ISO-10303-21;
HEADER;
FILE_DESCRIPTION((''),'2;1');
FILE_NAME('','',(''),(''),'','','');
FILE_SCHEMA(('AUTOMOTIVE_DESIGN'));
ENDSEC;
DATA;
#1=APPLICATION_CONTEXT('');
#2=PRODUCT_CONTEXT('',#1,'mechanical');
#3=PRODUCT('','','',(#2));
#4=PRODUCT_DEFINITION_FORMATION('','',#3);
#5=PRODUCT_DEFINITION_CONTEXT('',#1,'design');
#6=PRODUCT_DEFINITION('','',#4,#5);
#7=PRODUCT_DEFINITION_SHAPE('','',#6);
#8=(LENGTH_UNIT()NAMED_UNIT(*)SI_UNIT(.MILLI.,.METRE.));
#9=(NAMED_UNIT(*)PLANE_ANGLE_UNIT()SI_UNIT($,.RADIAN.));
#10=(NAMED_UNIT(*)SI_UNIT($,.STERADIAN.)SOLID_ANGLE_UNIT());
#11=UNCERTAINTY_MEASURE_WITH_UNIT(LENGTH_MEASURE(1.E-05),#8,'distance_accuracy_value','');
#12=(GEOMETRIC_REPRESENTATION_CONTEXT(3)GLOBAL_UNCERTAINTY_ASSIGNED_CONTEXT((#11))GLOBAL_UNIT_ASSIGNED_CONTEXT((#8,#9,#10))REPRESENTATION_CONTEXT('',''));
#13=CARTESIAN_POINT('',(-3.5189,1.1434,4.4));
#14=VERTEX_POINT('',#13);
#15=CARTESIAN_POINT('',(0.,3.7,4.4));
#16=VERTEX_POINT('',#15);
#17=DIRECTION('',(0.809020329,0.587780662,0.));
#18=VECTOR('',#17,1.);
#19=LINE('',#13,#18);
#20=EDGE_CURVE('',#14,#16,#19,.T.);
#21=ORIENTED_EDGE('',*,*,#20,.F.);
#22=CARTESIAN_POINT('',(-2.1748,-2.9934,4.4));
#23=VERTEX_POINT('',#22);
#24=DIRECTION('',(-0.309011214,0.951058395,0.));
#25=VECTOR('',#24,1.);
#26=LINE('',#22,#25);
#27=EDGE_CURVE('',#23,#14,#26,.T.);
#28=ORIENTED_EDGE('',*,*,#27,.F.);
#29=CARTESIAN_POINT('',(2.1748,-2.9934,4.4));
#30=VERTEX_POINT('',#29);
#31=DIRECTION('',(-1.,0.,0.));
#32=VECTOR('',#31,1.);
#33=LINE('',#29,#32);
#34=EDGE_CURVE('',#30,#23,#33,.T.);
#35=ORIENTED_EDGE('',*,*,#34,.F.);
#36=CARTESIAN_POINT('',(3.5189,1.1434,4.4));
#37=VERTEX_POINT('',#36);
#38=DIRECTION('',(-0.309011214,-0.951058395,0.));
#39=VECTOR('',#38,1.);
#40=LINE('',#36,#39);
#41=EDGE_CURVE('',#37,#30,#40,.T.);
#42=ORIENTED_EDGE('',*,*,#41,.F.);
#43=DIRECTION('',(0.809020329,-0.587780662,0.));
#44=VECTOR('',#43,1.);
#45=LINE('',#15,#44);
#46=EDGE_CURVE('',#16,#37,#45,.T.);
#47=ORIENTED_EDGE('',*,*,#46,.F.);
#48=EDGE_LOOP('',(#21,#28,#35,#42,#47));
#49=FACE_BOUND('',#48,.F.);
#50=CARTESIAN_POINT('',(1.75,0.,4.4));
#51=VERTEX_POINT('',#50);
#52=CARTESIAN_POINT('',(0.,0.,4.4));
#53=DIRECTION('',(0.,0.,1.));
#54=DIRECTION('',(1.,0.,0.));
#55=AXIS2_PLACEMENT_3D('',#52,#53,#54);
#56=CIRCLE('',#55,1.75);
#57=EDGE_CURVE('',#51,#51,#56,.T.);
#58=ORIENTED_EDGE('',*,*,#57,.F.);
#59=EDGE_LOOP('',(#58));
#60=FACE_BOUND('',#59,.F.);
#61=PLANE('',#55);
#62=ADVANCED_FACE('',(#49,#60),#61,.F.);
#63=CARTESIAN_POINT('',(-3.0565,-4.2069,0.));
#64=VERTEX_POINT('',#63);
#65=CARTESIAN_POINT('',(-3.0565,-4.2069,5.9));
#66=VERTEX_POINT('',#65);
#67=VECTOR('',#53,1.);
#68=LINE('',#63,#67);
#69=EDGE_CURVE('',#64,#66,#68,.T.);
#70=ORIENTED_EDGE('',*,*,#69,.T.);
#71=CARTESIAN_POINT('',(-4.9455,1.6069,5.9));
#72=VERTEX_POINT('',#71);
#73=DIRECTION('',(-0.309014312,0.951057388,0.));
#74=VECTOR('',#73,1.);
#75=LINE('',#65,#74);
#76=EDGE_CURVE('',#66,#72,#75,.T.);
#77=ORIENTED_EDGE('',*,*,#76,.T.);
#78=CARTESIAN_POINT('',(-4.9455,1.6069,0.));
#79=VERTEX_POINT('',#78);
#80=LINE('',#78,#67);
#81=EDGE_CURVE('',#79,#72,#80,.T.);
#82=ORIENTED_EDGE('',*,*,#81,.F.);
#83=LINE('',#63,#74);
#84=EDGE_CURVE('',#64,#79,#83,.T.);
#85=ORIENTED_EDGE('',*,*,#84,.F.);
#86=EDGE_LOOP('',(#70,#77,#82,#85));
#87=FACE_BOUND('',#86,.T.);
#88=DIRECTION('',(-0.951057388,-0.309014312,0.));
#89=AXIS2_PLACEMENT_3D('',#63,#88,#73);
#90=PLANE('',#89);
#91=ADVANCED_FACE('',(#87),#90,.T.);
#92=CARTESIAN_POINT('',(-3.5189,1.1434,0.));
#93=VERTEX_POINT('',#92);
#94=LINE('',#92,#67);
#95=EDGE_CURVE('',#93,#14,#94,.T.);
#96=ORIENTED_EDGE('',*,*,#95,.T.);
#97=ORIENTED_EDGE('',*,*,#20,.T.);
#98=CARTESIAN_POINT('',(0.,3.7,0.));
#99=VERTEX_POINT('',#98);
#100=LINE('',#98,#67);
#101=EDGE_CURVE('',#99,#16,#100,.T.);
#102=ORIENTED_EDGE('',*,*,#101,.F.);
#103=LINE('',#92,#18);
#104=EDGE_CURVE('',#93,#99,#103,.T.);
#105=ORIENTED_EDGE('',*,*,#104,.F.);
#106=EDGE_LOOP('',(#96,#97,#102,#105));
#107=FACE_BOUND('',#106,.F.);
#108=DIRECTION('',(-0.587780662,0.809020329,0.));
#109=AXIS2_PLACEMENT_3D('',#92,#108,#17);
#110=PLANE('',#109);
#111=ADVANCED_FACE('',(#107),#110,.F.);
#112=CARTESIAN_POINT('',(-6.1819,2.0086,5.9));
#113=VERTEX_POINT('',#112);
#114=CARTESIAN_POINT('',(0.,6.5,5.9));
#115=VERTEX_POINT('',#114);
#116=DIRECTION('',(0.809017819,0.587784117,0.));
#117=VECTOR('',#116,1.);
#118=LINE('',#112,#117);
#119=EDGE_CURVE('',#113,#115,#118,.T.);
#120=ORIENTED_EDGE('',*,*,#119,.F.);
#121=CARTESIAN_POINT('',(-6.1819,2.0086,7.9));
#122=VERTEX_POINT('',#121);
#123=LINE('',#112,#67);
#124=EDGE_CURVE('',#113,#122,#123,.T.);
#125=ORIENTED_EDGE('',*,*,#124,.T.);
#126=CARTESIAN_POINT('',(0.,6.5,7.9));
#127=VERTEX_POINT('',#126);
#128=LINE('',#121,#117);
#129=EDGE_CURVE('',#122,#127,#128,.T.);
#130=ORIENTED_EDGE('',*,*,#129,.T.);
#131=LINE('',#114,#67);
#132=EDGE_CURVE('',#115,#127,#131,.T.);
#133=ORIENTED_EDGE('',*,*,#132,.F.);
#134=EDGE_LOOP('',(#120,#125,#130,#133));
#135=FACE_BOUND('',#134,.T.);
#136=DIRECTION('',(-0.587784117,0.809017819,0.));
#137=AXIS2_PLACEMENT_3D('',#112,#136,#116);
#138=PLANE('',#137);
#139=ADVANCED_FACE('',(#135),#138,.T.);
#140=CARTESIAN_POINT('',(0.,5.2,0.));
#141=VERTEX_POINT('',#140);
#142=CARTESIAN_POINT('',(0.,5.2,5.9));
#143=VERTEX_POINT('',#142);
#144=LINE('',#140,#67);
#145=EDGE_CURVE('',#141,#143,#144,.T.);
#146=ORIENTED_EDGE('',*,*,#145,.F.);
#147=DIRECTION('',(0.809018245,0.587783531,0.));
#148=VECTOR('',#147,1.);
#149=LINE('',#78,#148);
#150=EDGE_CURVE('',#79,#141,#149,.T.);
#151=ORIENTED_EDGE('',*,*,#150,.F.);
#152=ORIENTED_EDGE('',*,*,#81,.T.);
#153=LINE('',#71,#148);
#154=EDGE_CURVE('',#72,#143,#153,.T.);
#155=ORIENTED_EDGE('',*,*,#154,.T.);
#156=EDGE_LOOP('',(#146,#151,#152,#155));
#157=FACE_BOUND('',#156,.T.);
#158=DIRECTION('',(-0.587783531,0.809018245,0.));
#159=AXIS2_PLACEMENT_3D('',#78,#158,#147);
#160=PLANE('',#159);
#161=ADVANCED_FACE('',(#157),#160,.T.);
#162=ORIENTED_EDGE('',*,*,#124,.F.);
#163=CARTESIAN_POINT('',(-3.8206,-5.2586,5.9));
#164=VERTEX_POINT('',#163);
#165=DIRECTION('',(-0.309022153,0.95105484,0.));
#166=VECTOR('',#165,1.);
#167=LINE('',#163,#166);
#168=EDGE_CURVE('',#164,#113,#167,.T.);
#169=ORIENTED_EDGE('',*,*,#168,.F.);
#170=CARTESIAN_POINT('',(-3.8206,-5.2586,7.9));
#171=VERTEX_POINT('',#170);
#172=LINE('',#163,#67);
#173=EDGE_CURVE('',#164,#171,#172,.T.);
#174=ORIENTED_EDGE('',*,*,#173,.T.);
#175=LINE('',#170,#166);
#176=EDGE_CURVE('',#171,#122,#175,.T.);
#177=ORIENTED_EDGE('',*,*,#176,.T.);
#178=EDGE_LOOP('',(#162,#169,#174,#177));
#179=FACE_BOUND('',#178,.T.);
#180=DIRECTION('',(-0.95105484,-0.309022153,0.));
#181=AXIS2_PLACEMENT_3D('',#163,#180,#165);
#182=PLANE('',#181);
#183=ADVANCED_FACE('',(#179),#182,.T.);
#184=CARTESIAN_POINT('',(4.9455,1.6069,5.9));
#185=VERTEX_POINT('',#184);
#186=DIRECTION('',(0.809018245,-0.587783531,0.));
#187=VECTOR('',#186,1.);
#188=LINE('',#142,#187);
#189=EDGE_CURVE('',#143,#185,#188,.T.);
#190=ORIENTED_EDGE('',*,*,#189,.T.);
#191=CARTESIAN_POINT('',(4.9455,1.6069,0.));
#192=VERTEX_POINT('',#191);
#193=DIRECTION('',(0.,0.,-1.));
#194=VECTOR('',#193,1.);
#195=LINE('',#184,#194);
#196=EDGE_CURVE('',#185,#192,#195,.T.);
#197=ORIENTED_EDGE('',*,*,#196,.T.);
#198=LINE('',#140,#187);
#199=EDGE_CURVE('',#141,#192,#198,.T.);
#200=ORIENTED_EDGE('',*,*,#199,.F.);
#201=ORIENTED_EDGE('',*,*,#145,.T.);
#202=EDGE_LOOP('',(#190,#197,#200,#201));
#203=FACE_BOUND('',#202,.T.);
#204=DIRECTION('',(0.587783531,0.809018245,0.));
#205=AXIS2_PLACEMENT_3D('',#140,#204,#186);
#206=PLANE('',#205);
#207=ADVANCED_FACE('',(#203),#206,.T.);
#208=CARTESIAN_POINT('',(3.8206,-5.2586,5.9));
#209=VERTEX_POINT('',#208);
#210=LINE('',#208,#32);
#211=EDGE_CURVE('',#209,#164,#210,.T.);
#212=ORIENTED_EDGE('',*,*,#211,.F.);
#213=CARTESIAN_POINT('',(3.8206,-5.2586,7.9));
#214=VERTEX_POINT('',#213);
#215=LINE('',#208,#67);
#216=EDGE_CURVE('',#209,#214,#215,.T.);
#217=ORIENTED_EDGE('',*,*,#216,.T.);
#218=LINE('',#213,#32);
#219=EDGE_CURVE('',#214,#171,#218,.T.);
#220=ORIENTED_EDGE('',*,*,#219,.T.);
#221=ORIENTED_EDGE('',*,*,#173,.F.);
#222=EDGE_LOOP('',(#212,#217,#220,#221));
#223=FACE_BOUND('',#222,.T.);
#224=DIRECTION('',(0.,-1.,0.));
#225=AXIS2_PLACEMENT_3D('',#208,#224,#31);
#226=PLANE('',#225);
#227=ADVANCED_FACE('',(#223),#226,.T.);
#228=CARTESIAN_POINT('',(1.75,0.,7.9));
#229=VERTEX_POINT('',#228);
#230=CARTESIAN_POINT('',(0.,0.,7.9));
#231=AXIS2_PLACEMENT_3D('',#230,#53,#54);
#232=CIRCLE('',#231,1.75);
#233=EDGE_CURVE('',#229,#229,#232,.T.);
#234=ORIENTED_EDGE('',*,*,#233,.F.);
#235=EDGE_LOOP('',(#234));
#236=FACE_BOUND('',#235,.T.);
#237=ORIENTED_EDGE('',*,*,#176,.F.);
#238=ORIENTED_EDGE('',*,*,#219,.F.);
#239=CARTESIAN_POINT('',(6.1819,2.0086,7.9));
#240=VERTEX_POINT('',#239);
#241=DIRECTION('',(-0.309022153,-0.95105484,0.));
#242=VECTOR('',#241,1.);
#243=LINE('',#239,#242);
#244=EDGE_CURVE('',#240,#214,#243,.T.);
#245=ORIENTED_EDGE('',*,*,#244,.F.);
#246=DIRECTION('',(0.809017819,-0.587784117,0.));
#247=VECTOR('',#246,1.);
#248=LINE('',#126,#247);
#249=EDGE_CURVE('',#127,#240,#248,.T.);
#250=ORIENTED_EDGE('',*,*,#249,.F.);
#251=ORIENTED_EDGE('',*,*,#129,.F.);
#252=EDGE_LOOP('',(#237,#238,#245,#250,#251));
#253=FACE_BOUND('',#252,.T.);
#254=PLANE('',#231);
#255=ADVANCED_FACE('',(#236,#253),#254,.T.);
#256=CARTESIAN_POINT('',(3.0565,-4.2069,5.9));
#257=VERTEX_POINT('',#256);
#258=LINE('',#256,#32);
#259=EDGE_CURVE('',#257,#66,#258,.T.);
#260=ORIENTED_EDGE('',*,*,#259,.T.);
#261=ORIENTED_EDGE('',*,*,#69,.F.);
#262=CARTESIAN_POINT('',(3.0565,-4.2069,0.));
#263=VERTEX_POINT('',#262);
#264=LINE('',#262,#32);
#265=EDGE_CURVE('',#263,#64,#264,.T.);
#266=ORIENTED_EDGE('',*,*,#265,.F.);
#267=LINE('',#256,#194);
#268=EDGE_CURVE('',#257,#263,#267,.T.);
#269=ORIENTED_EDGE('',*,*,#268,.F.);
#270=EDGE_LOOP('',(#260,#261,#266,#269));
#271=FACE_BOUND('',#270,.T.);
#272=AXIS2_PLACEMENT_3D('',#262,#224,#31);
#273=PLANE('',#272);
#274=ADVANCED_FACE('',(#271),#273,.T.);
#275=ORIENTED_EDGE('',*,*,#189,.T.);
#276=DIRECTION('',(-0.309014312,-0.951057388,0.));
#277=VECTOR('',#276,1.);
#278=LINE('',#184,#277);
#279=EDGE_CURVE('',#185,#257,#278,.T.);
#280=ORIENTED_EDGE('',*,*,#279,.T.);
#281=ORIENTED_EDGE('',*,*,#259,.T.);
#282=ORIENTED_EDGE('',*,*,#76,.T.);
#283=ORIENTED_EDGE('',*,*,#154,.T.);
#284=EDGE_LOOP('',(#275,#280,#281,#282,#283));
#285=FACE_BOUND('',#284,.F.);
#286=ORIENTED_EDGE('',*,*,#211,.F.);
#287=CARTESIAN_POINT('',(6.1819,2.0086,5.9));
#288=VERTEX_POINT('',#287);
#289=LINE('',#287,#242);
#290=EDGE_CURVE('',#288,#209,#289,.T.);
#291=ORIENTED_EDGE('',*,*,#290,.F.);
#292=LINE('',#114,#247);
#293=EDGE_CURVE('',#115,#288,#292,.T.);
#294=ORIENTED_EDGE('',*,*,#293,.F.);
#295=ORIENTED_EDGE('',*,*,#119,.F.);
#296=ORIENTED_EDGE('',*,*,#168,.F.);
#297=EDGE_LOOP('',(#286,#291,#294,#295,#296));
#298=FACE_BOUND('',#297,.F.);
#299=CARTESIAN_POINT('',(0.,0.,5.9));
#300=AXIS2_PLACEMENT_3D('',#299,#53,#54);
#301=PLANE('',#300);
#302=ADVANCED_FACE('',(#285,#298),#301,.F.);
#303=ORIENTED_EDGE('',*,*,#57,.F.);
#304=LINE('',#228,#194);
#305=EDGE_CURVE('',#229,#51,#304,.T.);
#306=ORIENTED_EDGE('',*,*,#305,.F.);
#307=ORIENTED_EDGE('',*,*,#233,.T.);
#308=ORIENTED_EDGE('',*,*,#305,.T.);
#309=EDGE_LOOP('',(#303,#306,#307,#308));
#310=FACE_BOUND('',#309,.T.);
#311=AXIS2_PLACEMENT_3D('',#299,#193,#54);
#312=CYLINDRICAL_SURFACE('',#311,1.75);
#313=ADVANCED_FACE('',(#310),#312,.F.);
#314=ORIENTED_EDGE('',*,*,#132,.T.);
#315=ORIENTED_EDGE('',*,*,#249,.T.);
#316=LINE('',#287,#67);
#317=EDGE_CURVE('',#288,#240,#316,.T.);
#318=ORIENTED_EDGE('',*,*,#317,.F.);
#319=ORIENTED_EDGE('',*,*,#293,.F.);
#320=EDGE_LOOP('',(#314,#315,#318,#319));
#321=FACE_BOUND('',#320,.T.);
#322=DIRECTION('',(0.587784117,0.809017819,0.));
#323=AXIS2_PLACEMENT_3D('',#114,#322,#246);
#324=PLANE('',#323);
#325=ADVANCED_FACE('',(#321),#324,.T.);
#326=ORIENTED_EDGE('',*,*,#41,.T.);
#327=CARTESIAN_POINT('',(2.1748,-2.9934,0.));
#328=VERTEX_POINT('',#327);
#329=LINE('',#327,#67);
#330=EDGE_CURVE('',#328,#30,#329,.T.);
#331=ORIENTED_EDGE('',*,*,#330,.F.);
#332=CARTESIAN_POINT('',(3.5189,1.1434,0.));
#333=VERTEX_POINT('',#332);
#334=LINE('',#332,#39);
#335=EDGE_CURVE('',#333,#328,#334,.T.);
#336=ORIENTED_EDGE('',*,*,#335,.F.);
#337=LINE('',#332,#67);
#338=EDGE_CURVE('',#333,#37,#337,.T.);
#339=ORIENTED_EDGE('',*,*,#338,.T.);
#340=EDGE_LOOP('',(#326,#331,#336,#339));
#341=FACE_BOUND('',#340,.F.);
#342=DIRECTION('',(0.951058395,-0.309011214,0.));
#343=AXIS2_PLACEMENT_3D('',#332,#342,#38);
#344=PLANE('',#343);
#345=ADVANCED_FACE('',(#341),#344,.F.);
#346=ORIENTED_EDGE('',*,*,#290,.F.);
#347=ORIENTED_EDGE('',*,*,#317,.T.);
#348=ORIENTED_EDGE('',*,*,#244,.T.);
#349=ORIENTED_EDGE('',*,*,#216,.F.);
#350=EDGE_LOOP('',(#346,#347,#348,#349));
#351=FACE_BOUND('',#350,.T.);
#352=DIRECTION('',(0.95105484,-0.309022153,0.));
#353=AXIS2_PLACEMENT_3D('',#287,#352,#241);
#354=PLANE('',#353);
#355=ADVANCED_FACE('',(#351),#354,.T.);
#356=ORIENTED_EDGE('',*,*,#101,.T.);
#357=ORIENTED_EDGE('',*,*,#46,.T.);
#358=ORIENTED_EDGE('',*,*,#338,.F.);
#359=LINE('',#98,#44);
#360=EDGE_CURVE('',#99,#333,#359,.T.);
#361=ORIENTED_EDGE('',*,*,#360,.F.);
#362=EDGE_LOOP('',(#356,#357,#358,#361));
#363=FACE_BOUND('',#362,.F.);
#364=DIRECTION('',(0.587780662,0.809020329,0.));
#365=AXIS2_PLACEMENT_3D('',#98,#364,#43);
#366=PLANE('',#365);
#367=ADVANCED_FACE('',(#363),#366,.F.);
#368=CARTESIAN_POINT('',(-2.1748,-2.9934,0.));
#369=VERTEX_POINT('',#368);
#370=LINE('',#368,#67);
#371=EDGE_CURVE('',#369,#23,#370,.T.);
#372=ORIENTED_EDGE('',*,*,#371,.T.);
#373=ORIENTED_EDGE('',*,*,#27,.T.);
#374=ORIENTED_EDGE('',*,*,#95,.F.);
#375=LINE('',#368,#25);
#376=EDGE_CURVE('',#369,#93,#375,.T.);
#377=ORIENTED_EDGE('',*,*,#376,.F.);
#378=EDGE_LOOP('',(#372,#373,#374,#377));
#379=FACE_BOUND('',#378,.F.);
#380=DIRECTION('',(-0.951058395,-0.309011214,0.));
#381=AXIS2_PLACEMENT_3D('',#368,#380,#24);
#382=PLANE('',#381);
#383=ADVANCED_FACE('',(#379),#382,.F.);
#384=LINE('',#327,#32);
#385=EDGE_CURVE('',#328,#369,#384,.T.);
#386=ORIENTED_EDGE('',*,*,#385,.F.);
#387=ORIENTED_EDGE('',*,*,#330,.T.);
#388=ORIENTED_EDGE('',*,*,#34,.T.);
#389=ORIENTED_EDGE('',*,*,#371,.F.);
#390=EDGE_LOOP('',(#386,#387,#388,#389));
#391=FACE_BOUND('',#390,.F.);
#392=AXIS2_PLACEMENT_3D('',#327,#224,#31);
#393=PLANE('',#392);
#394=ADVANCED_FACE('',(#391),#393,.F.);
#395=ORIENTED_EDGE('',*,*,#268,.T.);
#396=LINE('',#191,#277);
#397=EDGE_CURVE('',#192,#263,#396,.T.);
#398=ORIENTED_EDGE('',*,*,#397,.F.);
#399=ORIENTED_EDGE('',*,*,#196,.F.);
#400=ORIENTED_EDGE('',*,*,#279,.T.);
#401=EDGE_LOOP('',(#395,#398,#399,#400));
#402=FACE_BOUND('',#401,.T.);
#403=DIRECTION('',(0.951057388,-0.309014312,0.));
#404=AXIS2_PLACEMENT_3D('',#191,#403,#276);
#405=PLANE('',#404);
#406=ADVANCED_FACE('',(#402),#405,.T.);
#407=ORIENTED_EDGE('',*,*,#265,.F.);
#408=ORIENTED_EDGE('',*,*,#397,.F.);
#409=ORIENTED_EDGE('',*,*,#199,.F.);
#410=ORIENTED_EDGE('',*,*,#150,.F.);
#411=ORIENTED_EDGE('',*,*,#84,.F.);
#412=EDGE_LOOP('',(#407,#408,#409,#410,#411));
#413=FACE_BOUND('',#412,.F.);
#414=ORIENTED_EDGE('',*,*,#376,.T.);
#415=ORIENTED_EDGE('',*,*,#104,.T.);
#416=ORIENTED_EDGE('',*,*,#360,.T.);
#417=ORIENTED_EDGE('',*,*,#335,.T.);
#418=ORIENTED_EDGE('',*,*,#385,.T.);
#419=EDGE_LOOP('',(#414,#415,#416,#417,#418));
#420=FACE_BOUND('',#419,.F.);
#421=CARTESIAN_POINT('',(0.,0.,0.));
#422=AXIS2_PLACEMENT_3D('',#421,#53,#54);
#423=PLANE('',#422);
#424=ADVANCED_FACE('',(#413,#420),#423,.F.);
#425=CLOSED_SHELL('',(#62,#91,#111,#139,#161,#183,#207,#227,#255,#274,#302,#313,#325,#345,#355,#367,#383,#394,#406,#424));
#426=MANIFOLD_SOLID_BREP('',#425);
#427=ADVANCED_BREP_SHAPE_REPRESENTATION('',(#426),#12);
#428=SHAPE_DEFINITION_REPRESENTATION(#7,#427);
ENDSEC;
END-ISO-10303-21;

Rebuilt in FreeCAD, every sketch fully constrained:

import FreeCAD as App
import Part
import Sketcher
Q = App.Units.Quantity


def add_polygon(sketch, points):
    """Adds a closed chain of lines whose ends are joined by coincident constraints."""
    first, n = sketch.GeometryCount, len(points)
    for a, b in zip(points, points[1:] + points[:1]):
        sketch.addGeometry(Part.LineSegment(App.Vector(*a, 0), App.Vector(*b, 0)), False)
    for i in range(n):
        sketch.addConstraint(Sketcher.Constraint("Coincident", first + i, 2, first + (i + 1) % n, 1))

doc = App.newDocument("Part")
body = doc.addObject("PartDesign::Body", "Body")

sketch1 = body.newObject("Sketcher::SketchObject", "Sketch")
sketch1.AttachmentSupport = (doc.getObject("XY_Plane"), [""])
sketch1.MapMode = "FlatFace"
add_polygon(sketch1, [(4.9, 1.6), (0, 5.2), (-4.9, 1.6), (-3.1, -4.2), (3.1, -4.2)])
add_polygon(sketch1, [(-3.5, 1.1), (0, 3.7), (3.5, 1.1), (2.2, -3), (-2.2, -3)])
sketch1.addConstraint([
    Sketcher.Constraint("Horizontal", 3),
    Sketcher.Constraint("Horizontal", 8),
    Sketcher.Constraint("Symmetric", 1, 2, 4, 2, -2),
    Sketcher.Constraint("Symmetric", 6, 2, 9, 2, -2),
    Sketcher.Constraint("PointOnObject", 0, 2, -2),
    Sketcher.Constraint("PointOnObject", 5, 2, -2),
    Sketcher.Constraint("Parallel", 1, 5),
    Sketcher.Constraint("Parallel", 4, 7),
    Sketcher.Constraint("Parallel", 2, 9),
    Sketcher.Constraint("Equal", 1, 2),
    Sketcher.Constraint("Equal", 2, 4),
    Sketcher.Constraint("Equal", 6, 7),
    Sketcher.Constraint("Angle", 0, Q("144.0001 deg")),
    Sketcher.Constraint("Angle", 2, Q("-72.0002 deg")),
    Sketcher.Constraint("DistanceY", -1, 1, 0, 2, Q("5.2 mm")),
    Sketcher.Constraint("DistanceY", -1, 1, 5, 2, Q("3.7 mm")),
    Sketcher.Constraint("DistanceX", 3, 1, 3, 2, Q("6.113 mm")),
    Sketcher.Constraint("DistanceX", 8, 2, 8, 1, Q("4.3496 mm")),
])
pad1 = body.newObject("PartDesign::Pad", "Pad")
pad1.Profile = sketch1
pad1.Length = 4.4

sketch2 = body.newObject("Sketcher::SketchObject", "Sketch001")
sketch2.AttachmentSupport = (doc.getObject("XY_Plane"), [""])
sketch2.MapMode = "FlatFace"
sketch2.AttachmentOffset = App.Placement(App.Vector(0, 0, 4.4), App.Rotation())
add_polygon(sketch2, [(4.9, 1.6), (0, 5.2), (-4.9, 1.6), (-3.1, -4.2), (3.1, -4.2)])
sketch2.addGeometry(Part.Circle(App.Vector(0, 0, 0), App.Vector(0, 0, 1), 1.8), False)
sketch2.addConstraint([
    Sketcher.Constraint("Horizontal", 3),
    Sketcher.Constraint("Coincident", 5, 3, -1, 1),
    Sketcher.Constraint("Symmetric", 1, 2, 4, 2, -2),
    Sketcher.Constraint("PointOnObject", 0, 2, -2),
    Sketcher.Constraint("Equal", 1, 2),
    Sketcher.Constraint("Equal", 2, 4),
    Sketcher.Constraint("Diameter", 5, Q("3.5 mm")),
    Sketcher.Constraint("Angle", 0, Q("144.0001 deg")),
    Sketcher.Constraint("Angle", 2, Q("-72.0002 deg")),
    Sketcher.Constraint("DistanceY", -1, 1, 0, 2, Q("5.2 mm")),
    Sketcher.Constraint("DistanceX", 3, 1, 3, 2, Q("6.113 mm")),
])
pad2 = body.newObject("PartDesign::Pad", "Pad001")
pad2.Profile = sketch2
pad2.Length = 1.5

sketch3 = body.newObject("Sketcher::SketchObject", "Sketch002")
sketch3.AttachmentSupport = (doc.getObject("XY_Plane"), [""])
sketch3.MapMode = "FlatFace"
sketch3.AttachmentOffset = App.Placement(App.Vector(0, 0, 5.9), App.Rotation())
add_polygon(sketch3, [(0, 6.5), (-6.2, 2), (-3.8, -5.3), (3.8, -5.3), (6.2, 2)])
sketch3.addGeometry(Part.Circle(App.Vector(0, 0, 0), App.Vector(0, 0, 1), 1.8), False)
sketch3.addConstraint([
    Sketcher.Constraint("Horizontal", 2),
    Sketcher.Constraint("Coincident", 5, 3, -1, 1),
    Sketcher.Constraint("Symmetric", 0, 2, 3, 2, -2),
    Sketcher.Constraint("PointOnObject", 4, 2, -2),
    Sketcher.Constraint("Equal", 0, 1),
    Sketcher.Constraint("Equal", 1, 3),
    Sketcher.Constraint("Diameter", 5, Q("3.5 mm")),
    Sketcher.Constraint("Angle", 0, Q("-144 deg")),
    Sketcher.Constraint("Angle", 1, Q("-71.9997 deg")),
    Sketcher.Constraint("DistanceY", -1, 1, 4, 2, Q("6.5 mm")),
    Sketcher.Constraint("DistanceX", 2, 1, 2, 2, Q("7.6412 mm")),
])
pad3 = body.newObject("PartDesign::Pad", "Pad002")
pad3.Profile = sketch3
pad3.Length = 2

doc.recompute()
